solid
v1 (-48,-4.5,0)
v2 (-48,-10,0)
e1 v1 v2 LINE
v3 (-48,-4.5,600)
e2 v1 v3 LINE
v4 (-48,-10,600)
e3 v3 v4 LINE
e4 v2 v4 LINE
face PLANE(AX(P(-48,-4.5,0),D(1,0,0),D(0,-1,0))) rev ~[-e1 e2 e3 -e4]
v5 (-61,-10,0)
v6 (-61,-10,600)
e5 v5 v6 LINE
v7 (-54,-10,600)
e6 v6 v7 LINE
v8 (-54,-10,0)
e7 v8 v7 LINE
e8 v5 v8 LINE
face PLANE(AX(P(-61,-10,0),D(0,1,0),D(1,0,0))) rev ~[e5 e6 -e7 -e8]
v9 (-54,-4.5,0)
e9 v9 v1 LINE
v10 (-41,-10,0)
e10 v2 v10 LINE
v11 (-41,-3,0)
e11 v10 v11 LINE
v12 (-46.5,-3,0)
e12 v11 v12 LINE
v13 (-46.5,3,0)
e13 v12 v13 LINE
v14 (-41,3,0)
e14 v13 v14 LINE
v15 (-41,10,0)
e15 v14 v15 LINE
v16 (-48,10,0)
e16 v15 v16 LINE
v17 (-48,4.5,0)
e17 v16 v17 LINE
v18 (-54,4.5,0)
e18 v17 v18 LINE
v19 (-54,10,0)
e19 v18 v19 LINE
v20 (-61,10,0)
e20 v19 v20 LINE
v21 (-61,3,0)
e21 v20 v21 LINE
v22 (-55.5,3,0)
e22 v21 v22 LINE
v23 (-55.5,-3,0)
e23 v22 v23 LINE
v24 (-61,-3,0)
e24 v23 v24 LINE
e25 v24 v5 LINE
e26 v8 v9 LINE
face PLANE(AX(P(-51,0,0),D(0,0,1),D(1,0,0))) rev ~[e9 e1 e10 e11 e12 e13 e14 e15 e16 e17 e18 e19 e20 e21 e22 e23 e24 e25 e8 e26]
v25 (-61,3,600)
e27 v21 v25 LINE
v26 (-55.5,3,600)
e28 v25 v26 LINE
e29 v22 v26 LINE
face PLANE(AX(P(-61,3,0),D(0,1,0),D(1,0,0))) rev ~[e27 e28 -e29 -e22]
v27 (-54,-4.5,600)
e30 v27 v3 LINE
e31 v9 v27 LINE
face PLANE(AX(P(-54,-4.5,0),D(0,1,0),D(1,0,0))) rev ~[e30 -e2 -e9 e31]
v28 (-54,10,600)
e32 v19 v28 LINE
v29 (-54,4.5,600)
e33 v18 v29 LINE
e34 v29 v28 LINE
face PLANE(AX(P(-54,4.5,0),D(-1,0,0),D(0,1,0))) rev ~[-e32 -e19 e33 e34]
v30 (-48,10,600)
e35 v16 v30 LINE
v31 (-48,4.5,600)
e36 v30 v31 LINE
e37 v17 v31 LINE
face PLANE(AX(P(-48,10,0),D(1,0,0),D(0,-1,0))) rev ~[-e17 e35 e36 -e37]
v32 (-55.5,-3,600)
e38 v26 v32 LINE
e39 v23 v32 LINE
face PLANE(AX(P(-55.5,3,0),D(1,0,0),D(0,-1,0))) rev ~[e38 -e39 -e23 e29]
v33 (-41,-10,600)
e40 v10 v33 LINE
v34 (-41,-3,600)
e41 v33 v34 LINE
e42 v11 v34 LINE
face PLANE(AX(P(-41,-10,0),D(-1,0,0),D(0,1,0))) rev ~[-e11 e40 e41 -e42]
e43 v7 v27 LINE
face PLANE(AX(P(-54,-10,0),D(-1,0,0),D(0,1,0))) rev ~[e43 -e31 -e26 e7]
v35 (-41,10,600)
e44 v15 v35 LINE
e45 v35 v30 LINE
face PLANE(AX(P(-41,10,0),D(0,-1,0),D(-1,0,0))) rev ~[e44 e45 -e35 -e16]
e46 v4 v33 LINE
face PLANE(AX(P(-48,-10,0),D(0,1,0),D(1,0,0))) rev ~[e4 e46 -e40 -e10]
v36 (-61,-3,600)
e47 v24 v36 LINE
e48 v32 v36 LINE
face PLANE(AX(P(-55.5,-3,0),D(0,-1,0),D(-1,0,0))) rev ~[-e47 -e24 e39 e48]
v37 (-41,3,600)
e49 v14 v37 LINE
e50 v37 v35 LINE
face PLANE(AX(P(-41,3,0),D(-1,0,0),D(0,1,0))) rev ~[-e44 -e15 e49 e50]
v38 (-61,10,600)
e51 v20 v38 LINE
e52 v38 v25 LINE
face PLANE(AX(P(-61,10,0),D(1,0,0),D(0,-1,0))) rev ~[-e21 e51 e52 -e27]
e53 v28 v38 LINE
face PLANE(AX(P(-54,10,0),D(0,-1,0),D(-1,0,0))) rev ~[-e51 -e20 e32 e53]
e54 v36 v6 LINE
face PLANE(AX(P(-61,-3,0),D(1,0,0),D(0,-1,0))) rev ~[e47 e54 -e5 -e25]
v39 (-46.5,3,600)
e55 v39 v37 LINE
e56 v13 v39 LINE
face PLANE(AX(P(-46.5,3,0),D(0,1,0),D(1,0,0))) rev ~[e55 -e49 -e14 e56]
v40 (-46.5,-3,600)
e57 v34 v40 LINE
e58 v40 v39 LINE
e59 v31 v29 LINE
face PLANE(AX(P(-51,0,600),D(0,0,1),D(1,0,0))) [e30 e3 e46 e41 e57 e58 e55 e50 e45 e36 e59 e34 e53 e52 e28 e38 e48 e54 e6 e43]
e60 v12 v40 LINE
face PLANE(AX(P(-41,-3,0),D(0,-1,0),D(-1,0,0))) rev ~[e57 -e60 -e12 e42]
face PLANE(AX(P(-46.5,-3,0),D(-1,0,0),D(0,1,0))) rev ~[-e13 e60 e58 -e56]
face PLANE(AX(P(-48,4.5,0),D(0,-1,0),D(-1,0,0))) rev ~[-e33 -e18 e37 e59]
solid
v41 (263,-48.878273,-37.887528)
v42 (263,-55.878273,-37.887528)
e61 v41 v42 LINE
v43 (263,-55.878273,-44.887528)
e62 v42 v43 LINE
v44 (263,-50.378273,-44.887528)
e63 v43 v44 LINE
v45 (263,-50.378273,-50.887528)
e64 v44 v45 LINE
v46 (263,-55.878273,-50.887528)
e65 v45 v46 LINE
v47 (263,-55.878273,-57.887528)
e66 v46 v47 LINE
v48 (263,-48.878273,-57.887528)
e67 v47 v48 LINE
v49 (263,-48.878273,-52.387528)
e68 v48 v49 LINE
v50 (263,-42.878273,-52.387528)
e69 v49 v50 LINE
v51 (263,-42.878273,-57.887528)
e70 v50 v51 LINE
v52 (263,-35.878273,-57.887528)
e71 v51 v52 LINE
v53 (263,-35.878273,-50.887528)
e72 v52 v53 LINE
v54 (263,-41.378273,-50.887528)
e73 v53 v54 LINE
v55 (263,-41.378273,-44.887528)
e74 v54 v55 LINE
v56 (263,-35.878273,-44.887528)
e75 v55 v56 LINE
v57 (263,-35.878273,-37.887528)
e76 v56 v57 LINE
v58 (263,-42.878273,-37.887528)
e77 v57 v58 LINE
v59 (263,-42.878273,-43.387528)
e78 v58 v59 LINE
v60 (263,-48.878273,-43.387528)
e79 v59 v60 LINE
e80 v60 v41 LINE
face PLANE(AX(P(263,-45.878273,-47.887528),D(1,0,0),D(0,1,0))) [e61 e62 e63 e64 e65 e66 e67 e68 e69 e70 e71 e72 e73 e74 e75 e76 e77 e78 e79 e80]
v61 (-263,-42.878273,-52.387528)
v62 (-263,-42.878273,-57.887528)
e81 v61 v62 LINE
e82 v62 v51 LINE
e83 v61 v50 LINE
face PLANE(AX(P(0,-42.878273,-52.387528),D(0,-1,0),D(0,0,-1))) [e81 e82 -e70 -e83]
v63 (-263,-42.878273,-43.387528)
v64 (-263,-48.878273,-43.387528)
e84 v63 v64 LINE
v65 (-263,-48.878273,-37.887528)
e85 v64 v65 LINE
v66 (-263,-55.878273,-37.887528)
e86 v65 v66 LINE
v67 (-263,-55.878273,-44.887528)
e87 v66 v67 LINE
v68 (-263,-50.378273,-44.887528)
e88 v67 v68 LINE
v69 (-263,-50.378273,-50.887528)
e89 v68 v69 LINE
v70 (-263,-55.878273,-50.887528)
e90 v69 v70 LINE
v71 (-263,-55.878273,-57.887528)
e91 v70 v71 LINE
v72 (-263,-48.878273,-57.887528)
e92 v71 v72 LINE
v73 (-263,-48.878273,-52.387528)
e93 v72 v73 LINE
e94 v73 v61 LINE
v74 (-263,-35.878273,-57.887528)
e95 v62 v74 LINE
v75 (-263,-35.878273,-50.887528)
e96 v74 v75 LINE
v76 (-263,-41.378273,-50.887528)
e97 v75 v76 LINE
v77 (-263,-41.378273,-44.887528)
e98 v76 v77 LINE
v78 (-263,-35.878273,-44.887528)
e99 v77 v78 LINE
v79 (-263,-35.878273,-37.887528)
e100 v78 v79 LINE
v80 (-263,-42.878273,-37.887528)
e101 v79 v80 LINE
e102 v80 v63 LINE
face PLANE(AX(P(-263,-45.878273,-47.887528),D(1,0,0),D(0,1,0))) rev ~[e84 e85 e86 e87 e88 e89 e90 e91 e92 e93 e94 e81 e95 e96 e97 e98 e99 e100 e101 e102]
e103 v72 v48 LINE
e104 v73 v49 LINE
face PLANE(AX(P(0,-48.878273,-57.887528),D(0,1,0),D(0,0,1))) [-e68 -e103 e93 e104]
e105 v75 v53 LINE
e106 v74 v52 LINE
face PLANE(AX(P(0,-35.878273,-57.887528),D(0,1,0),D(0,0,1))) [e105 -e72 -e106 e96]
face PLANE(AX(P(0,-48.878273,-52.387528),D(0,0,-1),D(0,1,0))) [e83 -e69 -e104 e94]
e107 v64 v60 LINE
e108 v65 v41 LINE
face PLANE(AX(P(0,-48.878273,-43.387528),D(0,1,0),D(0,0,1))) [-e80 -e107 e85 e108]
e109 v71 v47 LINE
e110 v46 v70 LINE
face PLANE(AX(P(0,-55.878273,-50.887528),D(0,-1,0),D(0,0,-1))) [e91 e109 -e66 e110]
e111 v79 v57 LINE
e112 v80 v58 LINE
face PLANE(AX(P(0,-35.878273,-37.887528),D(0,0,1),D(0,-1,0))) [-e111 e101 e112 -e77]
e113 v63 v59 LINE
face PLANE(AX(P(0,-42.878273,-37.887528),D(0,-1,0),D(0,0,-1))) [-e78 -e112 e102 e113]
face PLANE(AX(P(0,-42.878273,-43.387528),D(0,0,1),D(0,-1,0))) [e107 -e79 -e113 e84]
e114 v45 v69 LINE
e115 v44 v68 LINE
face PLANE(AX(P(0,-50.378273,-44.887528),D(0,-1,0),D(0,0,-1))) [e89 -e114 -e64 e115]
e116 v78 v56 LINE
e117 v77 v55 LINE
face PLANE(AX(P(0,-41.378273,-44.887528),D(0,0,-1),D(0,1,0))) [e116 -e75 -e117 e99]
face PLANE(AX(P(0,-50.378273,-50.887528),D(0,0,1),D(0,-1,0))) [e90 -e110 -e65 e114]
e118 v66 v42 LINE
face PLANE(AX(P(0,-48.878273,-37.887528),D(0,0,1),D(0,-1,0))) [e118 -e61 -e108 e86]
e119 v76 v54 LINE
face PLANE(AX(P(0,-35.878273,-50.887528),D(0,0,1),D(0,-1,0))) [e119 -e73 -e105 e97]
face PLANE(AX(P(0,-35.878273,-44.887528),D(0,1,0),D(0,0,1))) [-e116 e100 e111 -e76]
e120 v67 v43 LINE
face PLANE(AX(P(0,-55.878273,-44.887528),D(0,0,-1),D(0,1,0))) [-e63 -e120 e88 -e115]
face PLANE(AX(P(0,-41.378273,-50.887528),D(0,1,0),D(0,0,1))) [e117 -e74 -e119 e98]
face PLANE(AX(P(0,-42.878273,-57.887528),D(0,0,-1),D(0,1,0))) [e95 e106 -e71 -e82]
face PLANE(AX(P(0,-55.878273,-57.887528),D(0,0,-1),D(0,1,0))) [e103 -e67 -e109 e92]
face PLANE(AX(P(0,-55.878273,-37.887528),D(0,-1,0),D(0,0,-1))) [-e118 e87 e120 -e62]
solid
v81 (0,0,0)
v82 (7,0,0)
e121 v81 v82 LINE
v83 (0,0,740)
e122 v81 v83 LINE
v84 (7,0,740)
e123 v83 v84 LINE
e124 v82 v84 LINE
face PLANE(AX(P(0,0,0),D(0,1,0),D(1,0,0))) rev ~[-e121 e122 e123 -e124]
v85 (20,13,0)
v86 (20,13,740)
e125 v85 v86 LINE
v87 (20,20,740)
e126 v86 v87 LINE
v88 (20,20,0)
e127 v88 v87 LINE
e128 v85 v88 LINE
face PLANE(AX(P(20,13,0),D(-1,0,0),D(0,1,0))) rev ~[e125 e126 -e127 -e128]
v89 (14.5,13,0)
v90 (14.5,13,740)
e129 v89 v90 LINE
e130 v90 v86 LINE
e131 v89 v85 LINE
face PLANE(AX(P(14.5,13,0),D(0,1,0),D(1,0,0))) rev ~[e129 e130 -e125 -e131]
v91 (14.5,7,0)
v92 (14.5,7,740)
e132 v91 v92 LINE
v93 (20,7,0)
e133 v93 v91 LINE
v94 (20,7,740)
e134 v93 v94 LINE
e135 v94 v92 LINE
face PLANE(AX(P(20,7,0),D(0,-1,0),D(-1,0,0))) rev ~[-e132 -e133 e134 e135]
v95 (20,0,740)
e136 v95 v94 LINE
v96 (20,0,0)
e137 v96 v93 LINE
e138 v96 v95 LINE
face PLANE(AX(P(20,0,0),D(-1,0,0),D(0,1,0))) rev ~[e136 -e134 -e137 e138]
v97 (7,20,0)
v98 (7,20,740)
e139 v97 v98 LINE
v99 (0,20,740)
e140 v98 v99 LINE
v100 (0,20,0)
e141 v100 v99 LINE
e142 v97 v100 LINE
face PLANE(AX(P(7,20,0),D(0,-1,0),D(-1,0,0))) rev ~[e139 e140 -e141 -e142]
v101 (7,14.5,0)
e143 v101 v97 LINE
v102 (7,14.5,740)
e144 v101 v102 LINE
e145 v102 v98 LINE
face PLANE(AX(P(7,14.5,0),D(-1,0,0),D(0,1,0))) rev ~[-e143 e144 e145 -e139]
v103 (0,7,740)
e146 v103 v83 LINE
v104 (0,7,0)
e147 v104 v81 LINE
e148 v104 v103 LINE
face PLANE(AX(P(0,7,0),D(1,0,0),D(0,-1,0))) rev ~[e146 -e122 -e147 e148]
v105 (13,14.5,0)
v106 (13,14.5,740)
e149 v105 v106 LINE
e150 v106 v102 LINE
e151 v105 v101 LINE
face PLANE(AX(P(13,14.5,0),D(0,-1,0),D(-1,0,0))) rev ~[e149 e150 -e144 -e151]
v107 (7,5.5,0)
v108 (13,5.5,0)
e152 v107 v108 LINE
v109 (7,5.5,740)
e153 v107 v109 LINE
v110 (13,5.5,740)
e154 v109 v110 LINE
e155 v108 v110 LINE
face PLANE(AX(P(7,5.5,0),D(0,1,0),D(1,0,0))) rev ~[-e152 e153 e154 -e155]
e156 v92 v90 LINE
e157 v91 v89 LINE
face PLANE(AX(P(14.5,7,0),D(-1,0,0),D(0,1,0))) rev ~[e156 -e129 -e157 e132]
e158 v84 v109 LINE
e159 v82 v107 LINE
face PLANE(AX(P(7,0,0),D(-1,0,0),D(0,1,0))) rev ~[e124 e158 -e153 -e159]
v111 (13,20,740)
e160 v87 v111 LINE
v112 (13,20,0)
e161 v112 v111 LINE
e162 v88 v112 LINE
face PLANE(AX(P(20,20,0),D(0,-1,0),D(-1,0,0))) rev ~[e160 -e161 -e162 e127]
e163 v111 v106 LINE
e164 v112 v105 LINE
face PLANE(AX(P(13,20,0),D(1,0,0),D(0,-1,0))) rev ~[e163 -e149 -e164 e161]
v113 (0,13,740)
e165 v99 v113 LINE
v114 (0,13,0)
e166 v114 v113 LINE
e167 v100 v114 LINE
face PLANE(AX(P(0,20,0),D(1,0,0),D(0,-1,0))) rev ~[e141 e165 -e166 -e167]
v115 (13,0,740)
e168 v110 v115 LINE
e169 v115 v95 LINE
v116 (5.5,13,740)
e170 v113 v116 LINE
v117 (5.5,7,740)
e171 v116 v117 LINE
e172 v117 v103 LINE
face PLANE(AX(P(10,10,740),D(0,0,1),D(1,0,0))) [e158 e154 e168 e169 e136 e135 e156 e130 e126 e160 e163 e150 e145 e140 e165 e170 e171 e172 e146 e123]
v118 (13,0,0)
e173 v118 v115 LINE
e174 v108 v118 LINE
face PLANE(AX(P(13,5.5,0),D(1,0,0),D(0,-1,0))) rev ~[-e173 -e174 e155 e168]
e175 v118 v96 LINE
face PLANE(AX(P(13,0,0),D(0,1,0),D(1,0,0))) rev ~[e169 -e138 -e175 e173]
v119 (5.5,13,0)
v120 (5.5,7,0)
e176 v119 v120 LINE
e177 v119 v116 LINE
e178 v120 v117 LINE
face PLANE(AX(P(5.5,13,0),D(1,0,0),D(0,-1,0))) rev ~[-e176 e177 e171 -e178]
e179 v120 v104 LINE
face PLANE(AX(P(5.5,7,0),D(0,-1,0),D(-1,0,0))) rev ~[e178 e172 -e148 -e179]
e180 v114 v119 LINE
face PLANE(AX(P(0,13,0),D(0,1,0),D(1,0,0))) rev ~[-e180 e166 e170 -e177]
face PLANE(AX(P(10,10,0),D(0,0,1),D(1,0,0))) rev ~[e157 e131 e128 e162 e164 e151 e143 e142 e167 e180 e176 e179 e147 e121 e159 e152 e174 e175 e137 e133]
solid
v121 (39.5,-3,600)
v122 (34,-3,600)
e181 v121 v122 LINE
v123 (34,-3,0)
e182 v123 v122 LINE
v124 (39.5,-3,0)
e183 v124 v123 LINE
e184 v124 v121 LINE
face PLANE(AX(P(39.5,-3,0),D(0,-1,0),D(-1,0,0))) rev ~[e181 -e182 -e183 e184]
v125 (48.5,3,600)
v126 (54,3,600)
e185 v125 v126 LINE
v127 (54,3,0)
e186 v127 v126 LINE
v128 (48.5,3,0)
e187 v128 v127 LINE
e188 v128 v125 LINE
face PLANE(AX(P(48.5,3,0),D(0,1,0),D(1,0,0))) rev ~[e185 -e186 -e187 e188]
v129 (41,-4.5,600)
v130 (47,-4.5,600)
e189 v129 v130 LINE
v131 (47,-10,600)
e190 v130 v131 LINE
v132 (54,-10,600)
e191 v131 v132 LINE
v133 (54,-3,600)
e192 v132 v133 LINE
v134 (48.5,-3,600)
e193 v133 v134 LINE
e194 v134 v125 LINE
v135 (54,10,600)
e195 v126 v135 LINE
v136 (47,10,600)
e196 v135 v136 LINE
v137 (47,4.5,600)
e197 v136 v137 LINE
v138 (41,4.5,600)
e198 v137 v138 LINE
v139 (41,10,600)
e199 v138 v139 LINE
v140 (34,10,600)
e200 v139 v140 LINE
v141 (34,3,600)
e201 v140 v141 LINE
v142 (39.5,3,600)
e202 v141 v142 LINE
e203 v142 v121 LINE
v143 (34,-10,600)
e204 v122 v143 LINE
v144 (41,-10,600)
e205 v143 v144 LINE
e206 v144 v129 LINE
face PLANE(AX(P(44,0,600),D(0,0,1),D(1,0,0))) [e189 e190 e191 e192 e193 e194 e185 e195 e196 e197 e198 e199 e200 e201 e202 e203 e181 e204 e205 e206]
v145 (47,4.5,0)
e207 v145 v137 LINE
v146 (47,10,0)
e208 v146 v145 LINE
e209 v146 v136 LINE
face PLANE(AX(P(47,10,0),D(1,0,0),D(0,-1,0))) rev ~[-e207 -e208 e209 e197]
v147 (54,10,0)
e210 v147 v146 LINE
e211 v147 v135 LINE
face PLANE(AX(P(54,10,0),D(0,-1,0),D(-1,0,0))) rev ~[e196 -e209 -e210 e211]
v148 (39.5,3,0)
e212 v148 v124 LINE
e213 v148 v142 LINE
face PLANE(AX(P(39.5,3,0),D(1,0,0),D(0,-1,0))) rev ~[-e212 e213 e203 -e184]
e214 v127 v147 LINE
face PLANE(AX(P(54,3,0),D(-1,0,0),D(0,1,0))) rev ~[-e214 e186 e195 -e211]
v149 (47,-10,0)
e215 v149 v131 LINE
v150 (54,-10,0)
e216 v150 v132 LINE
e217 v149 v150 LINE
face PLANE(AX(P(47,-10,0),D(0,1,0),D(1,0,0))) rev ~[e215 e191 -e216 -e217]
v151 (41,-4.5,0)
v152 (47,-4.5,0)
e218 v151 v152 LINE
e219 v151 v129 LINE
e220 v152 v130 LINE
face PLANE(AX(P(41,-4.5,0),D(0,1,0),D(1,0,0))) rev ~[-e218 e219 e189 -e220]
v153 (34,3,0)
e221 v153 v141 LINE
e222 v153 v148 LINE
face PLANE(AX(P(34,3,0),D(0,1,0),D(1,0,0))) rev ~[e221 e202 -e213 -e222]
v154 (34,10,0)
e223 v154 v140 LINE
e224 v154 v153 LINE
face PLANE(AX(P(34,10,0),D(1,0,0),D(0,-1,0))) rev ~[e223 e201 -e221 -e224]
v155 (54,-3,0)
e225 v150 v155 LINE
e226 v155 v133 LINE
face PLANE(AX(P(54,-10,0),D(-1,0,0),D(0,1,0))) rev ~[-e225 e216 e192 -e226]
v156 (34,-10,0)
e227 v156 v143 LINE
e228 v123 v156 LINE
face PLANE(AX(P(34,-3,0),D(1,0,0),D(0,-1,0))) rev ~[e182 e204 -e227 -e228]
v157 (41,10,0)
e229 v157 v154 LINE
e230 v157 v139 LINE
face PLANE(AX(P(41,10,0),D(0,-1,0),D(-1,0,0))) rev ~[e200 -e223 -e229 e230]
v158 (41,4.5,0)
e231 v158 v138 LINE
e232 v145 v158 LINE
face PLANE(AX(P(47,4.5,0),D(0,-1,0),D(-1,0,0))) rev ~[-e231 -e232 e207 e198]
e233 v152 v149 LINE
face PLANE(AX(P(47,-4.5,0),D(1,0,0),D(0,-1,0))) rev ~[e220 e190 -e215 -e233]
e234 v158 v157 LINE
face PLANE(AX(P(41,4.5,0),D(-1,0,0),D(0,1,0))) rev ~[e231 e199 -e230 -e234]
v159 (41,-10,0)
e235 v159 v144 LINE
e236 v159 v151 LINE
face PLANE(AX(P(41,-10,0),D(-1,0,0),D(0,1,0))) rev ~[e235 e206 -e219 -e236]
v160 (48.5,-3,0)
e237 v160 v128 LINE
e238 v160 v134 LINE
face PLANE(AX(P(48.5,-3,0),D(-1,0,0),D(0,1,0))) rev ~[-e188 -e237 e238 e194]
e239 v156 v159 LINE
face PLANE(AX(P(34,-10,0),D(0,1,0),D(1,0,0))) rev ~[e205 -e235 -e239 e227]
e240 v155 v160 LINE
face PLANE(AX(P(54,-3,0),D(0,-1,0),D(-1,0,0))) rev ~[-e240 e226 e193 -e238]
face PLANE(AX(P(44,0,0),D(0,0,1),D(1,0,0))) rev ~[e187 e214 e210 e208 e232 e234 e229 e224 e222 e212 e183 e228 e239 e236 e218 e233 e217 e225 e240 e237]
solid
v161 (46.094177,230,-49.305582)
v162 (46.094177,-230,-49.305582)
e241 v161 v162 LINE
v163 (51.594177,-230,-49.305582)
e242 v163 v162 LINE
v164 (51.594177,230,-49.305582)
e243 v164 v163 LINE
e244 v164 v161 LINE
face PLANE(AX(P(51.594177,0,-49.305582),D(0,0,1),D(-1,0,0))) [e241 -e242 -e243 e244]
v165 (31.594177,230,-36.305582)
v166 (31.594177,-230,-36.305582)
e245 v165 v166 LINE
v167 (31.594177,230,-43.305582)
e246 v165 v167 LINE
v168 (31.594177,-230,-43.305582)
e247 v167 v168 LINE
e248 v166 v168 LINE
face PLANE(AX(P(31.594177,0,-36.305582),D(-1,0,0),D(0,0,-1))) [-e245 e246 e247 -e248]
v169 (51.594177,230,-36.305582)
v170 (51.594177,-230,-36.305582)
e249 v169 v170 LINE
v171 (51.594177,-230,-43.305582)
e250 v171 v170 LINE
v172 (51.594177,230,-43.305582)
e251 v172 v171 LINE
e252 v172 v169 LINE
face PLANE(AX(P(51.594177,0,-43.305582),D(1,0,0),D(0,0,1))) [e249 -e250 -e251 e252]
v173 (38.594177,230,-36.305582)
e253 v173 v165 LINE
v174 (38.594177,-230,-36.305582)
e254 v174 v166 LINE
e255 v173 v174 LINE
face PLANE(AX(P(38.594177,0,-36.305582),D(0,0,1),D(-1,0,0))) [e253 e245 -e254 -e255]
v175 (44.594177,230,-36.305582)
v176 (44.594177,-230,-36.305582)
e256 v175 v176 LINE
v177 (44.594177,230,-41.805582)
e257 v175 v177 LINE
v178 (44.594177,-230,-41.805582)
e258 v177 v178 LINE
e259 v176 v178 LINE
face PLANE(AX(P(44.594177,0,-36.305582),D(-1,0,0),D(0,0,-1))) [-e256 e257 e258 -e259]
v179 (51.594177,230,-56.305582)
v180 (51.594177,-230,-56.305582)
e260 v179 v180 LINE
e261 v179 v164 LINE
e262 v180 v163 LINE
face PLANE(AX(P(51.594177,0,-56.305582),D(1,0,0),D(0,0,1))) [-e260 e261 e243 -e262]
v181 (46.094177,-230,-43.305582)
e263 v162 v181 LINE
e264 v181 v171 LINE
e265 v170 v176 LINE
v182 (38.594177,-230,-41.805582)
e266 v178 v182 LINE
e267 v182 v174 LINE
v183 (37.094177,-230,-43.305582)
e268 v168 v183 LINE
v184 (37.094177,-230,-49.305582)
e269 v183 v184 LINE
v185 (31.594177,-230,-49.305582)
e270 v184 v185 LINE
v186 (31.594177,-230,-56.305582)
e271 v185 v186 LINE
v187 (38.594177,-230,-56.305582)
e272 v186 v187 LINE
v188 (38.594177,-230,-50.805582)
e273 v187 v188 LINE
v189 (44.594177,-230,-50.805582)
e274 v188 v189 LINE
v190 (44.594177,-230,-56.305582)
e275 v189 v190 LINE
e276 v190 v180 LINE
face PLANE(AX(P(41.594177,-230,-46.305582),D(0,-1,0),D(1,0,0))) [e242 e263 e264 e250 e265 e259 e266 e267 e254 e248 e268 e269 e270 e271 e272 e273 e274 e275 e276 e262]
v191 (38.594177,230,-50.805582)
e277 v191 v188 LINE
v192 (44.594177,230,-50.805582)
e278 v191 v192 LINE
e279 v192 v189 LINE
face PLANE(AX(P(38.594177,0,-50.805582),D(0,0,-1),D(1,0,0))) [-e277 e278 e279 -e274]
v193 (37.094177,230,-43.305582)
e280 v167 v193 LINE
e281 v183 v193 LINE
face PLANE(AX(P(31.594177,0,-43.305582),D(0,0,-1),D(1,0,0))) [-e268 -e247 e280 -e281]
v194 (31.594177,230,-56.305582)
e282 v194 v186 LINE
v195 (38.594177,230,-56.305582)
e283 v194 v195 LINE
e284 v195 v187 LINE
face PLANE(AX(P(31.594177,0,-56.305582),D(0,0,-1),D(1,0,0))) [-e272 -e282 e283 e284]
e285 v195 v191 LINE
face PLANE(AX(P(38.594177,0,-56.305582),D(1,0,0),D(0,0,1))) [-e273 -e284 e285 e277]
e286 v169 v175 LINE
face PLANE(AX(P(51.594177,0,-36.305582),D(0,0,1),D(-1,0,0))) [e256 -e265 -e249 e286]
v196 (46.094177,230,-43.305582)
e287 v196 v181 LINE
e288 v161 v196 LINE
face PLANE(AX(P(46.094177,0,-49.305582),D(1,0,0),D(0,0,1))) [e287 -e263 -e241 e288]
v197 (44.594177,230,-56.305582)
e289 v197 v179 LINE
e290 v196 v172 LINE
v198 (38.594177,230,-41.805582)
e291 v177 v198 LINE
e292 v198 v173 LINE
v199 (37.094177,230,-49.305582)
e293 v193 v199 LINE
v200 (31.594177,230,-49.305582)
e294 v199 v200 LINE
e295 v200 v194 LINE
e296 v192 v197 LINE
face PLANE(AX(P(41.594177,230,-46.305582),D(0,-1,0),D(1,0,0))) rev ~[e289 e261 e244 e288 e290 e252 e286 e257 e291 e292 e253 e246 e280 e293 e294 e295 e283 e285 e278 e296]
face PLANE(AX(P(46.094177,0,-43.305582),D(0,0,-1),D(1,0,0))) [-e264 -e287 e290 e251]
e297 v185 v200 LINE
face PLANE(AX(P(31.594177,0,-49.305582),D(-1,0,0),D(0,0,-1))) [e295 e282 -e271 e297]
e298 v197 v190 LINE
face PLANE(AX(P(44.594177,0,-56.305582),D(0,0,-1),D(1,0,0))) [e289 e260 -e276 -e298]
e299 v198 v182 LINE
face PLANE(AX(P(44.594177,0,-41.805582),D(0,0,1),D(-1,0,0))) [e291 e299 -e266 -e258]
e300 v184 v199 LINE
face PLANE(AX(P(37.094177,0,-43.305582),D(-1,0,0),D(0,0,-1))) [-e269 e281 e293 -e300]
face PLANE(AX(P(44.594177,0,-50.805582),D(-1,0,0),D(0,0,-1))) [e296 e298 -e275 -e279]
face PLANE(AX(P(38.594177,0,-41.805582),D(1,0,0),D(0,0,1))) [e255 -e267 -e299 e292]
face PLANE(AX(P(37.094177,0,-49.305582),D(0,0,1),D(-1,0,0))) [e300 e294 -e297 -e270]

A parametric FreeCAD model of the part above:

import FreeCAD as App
import Part
import Sketcher

doc = App.newDocument("Part")
params = doc.addObject("Spreadsheet::Sheet", "Params")
for row, (alias, value) in enumerate([
    ("sketch1_width", "7 mm"),
    ("sketch1_width2", "6 mm"),
    ("sketch1_width3", "5.5 mm"),
    ("pad1_length", "740 mm"),
    ("sketch2_width", "7 mm"),
    ("sketch2_width2", "6 mm"),
    ("sketch2_width3", "5.5 mm"),
    ("pad2_length", "600 mm"),
    ("sketch3_width", "7 mm"),
    ("sketch3_width2", "6 mm"),
    ("sketch3_width3", "5.5 mm"),
    ("pad3_length", "600 mm"),
    ("sketch4_width", "7 mm"),
    ("sketch4_width2", "6 mm"),
    ("sketch4_width3", "5.5 mm"),
    ("pad4_length", "526 mm"),
    ("sketch5_width", "7 mm"),
    ("sketch5_width2", "6 mm"),
    ("sketch5_width3", "5.5 mm"),
    ("pad5_length", "460 mm"),
], start=1):
    params.set(f"A{row}", alias)
    params.set(f"B{row}", "=" + value)
    params.setAlias(f"B{row}", alias)

body = doc.addObject("PartDesign::Body", "Body")

# Sketch on XY plane
sketch1 = body.newObject("Sketcher::SketchObject", "Sketch")
sketch1.AttachmentSupport = (doc.getObject("XY_Plane"), [""])
sketch1.MapMode = "FlatFace"
sketch1.addGeometry([
    Part.LineSegment(App.Vector(0, 7, 0), App.Vector(0, 0, 0)),  # 0
    Part.LineSegment(App.Vector(0, 0, 0), App.Vector(7, 0, 0)),  # 1
    Part.LineSegment(App.Vector(7, 0, 0), App.Vector(7, 6, 0)),  # 2
    Part.LineSegment(App.Vector(7, 6, 0), App.Vector(13, 6, 0)),  # 3
    Part.LineSegment(App.Vector(13, 6, 0), App.Vector(13, 0, 0)),  # 4
    Part.LineSegment(App.Vector(13, 0, 0), App.Vector(20, 0, 0)),  # 5
    Part.LineSegment(App.Vector(20, 0, 0), App.Vector(20, 7, 0)),  # 6
    Part.LineSegment(App.Vector(20, 7, 0), App.Vector(14, 7, 0)),  # 7
    Part.LineSegment(App.Vector(14, 7, 0), App.Vector(14, 13, 0)),  # 8
    Part.LineSegment(App.Vector(14, 13, 0), App.Vector(20, 13, 0)),  # 9
    Part.LineSegment(App.Vector(20, 13, 0), App.Vector(20, 20, 0)),  # 10
    Part.LineSegment(App.Vector(20, 20, 0), App.Vector(13, 20, 0)),  # 11
    Part.LineSegment(App.Vector(13, 20, 0), App.Vector(13, 14, 0)),  # 12
    Part.LineSegment(App.Vector(13, 14, 0), App.Vector(7, 14, 0)),  # 13
    Part.LineSegment(App.Vector(7, 14, 0), App.Vector(7, 20, 0)),  # 14
    Part.LineSegment(App.Vector(7, 20, 0), App.Vector(0, 20, 0)),  # 15
    Part.LineSegment(App.Vector(0, 20, 0), App.Vector(0, 13, 0)),  # 16
    Part.LineSegment(App.Vector(0, 13, 0), App.Vector(6, 13, 0)),  # 17
    Part.LineSegment(App.Vector(6, 13, 0), App.Vector(6, 7, 0)),  # 18
    Part.LineSegment(App.Vector(6, 7, 0), App.Vector(0, 7, 0)),  # 19
], False)
sketch1.addConstraint([
    Sketcher.Constraint("Coincident", 0, 2, 1, 1),
    Sketcher.Constraint("Coincident", 1, 2, 2, 1),
    Sketcher.Constraint("Coincident", 2, 2, 3, 1),
    Sketcher.Constraint("Coincident", 3, 2, 4, 1),
    Sketcher.Constraint("Coincident", 4, 2, 5, 1),
    Sketcher.Constraint("Coincident", 5, 2, 6, 1),
    Sketcher.Constraint("Coincident", 6, 2, 7, 1),
    Sketcher.Constraint("Coincident", 7, 2, 8, 1),
    Sketcher.Constraint("Coincident", 8, 2, 9, 1),
    Sketcher.Constraint("Coincident", 9, 2, 10, 1),
    Sketcher.Constraint("Coincident", 10, 2, 11, 1),
    Sketcher.Constraint("Coincident", 11, 2, 12, 1),
    Sketcher.Constraint("Coincident", 12, 2, 13, 1),
    Sketcher.Constraint("Coincident", 13, 2, 14, 1),
    Sketcher.Constraint("Coincident", 14, 2, 15, 1),
    Sketcher.Constraint("Coincident", 15, 2, 16, 1),
    Sketcher.Constraint("Coincident", 16, 2, 17, 1),
    Sketcher.Constraint("Coincident", 17, 2, 18, 1),
    Sketcher.Constraint("Coincident", 18, 2, 19, 1),
    Sketcher.Constraint("Coincident", 19, 2, 0, 1),
    Sketcher.Constraint("Vertical", 0),
    Sketcher.Constraint("Horizontal", 1),
    Sketcher.Constraint("Vertical", 2),
    Sketcher.Constraint("Horizontal", 3),
    Sketcher.Constraint("Vertical", 4),
    Sketcher.Constraint("Horizontal", 5),
    Sketcher.Constraint("Vertical", 6),
    Sketcher.Constraint("Horizontal", 7),
    Sketcher.Constraint("Vertical", 8),
    Sketcher.Constraint("Horizontal", 9),
    Sketcher.Constraint("Vertical", 10),
    Sketcher.Constraint("Horizontal", 11),
    Sketcher.Constraint("Vertical", 12),
    Sketcher.Constraint("Horizontal", 13),
    Sketcher.Constraint("Vertical", 14),
    Sketcher.Constraint("Horizontal", 15),
    Sketcher.Constraint("Vertical", 16),
    Sketcher.Constraint("Horizontal", 17),
    Sketcher.Constraint("Vertical", 18),
    Sketcher.Constraint("Horizontal", 19),
    Sketcher.Constraint("Coincident", 0, 2, -1, 1),
    Sketcher.Constraint("PointOnObject", 4, 2, -1),
    Sketcher.Constraint("PointOnObject", 15, 2, -2),
    Sketcher.Constraint("Horizontal", 11, 2, 14, 2),
    Sketcher.Constraint("Horizontal", 9, 2, 16, 2),
    Sketcher.Constraint("Horizontal", 7, 2, 18, 2),
    Sketcher.Constraint("Vertical", 6, 2, 9, 2),
    Sketcher.Constraint("Vertical", 4, 2, 11, 2),
    Sketcher.Constraint("Vertical", 2, 2, 13, 2),
    Sketcher.Constraint("Equal", 1, 5),
    Sketcher.Constraint("Equal", 9, 17),
    Sketcher.Constraint("Equal", 15, 0),
    Sketcher.Constraint("Equal", 19, 2),
    Sketcher.Constraint("Equal", 13, 8),
    Sketcher.Constraint("Equal", 6, 10),
    Sketcher.Constraint("Equal", 4, 12),
    Sketcher.Constraint("DistanceX", 1, 1, 1, 2, 7.0),
    Sketcher.Constraint("DistanceX", 3, 1, 3, 2, 6.0),
    Sketcher.Constraint("DistanceX", 7, 2, 7, 1, 5.5),
])
sketch1.setExpression("Constraints[56]", "Params.sketch1_width")
sketch1.setExpression("Constraints[57]", "Params.sketch1_width2")
sketch1.setExpression("Constraints[58]", "Params.sketch1_width3")
pad1 = body.newObject("PartDesign::Pad", "Pad")
pad1.Profile = sketch1
pad1.setExpression("Length", "Params.pad1_length")
body2 = doc.addObject("PartDesign::Body", "Body001")

# Sketch on XY plane
sketch2 = body2.newObject("Sketcher::SketchObject", "Sketch001")
sketch2.AttachmentSupport = (doc.getObject("XY_Plane001"), [""])
sketch2.MapMode = "FlatFace"
sketch2.addGeometry([
    Part.LineSegment(App.Vector(-61, -3, 0), App.Vector(-61, -10, 0)),  # 0
    Part.LineSegment(App.Vector(-61, -10, 0), App.Vector(-54, -10, 0)),  # 1
    Part.LineSegment(App.Vector(-54, -10, 0), App.Vector(-54, -4, 0)),  # 2
    Part.LineSegment(App.Vector(-54, -4, 0), App.Vector(-48, -4, 0)),  # 3
    Part.LineSegment(App.Vector(-48, -4, 0), App.Vector(-48, -10, 0)),  # 4
    Part.LineSegment(App.Vector(-48, -10, 0), App.Vector(-41, -10, 0)),  # 5
    Part.LineSegment(App.Vector(-41, -10, 0), App.Vector(-41, -3, 0)),  # 6
    Part.LineSegment(App.Vector(-41, -3, 0), App.Vector(-46, -3, 0)),  # 7
    Part.LineSegment(App.Vector(-46, -3, 0), App.Vector(-46, 3, 0)),  # 8
    Part.LineSegment(App.Vector(-46, 3, 0), App.Vector(-41, 3, 0)),  # 9
    Part.LineSegment(App.Vector(-41, 3, 0), App.Vector(-41, 10, 0)),  # 10
    Part.LineSegment(App.Vector(-41, 10, 0), App.Vector(-48, 10, 0)),  # 11
    Part.LineSegment(App.Vector(-48, 10, 0), App.Vector(-48, 4, 0)),  # 12
    Part.LineSegment(App.Vector(-48, 4, 0), App.Vector(-54, 4, 0)),  # 13
    Part.LineSegment(App.Vector(-54, 4, 0), App.Vector(-54, 10, 0)),  # 14
    Part.LineSegment(App.Vector(-54, 10, 0), App.Vector(-61, 10, 0)),  # 15
    Part.LineSegment(App.Vector(-61, 10, 0), App.Vector(-61, 3, 0)),  # 16
    Part.LineSegment(App.Vector(-61, 3, 0), App.Vector(-56, 3, 0)),  # 17
    Part.LineSegment(App.Vector(-56, 3, 0), App.Vector(-56, -3, 0)),  # 18
    Part.LineSegment(App.Vector(-56, -3, 0), App.Vector(-61, -3, 0)),  # 19
], False)
sketch2.addConstraint([
    Sketcher.Constraint("Coincident", 0, 2, 1, 1),
    Sketcher.Constraint("Coincident", 1, 2, 2, 1),
    Sketcher.Constraint("Coincident", 2, 2, 3, 1),
    Sketcher.Constraint("Coincident", 3, 2, 4, 1),
    Sketcher.Constraint("Coincident", 4, 2, 5, 1),
    Sketcher.Constraint("Coincident", 5, 2, 6, 1),
    Sketcher.Constraint("Coincident", 6, 2, 7, 1),
    Sketcher.Constraint("Coincident", 7, 2, 8, 1),
    Sketcher.Constraint("Coincident", 8, 2, 9, 1),
    Sketcher.Constraint("Coincident", 9, 2, 10, 1),
    Sketcher.Constraint("Coincident", 10, 2, 11, 1),
    Sketcher.Constraint("Coincident", 11, 2, 12, 1),
    Sketcher.Constraint("Coincident", 12, 2, 13, 1),
    Sketcher.Constraint("Coincident", 13, 2, 14, 1),
    Sketcher.Constraint("Coincident", 14, 2, 15, 1),
    Sketcher.Constraint("Coincident", 15, 2, 16, 1),
    Sketcher.Constraint("Coincident", 16, 2, 17, 1),
    Sketcher.Constraint("Coincident", 17, 2, 18, 1),
    Sketcher.Constraint("Coincident", 18, 2, 19, 1),
    Sketcher.Constraint("Coincident", 19, 2, 0, 1),
    Sketcher.Constraint("Vertical", 0),
    Sketcher.Constraint("Horizontal", 1),
    Sketcher.Constraint("Vertical", 2),
    Sketcher.Constraint("Horizontal", 3),
    Sketcher.Constraint("Vertical", 4),
    Sketcher.Constraint("Horizontal", 5),
    Sketcher.Constraint("Vertical", 6),
    Sketcher.Constraint("Horizontal", 7),
    Sketcher.Constraint("Vertical", 8),
    Sketcher.Constraint("Horizontal", 9),
    Sketcher.Constraint("Vertical", 10),
    Sketcher.Constraint("Horizontal", 11),
    Sketcher.Constraint("Vertical", 12),
    Sketcher.Constraint("Horizontal", 13),
    Sketcher.Constraint("Vertical", 14),
    Sketcher.Constraint("Horizontal", 15),
    Sketcher.Constraint("Vertical", 16),
    Sketcher.Constraint("Horizontal", 17),
    Sketcher.Constraint("Vertical", 18),
    Sketcher.Constraint("Horizontal", 19),
    Sketcher.Constraint("Symmetric", 6, 2, 9, 2, -1),
    Sketcher.Constraint("Symmetric", 4, 2, 11, 2, -1),
    Sketcher.Constraint("Symmetric", 2, 2, 13, 2, -1),
    Sketcher.Constraint("Symmetric", 0, 2, 15, 2, -1),
    Sketcher.Constraint("Horizontal", 1, 2, 4, 2),
    Sketcher.Constraint("Horizontal", 9, 2, 16, 2),
    Sketcher.Constraint("Horizontal", 7, 2, 18, 2),
    Sketcher.Constraint("Equal", 1, 5),
    Sketcher.Constraint("Equal", 9, 17),
    Sketcher.Constraint("Equal", 15, 0),
    Sketcher.Constraint("Equal", 19, 2),
    Sketcher.Constraint("Equal", 13, 8),
    Sketcher.Constraint("DistanceX", 1, 1, 1, 2, 7.0),
    Sketcher.Constraint("DistanceX", 3, 1, 3, 2, 6.0),
    Sketcher.Constraint("DistanceX", 7, 2, 7, 1, 5.5),
    Sketcher.Constraint("DistanceX", 0, 2, -1, 1, 61.0),
])
sketch2.setExpression("Constraints[52]", "Params.sketch2_width")
sketch2.setExpression("Constraints[53]", "Params.sketch2_width2")
sketch2.setExpression("Constraints[54]", "Params.sketch2_width3")
pad2 = body2.newObject("PartDesign::Pad", "Pad001")
pad2.Profile = sketch2
pad2.setExpression("Length", "Params.pad2_length")
body3 = doc.addObject("PartDesign::Body", "Body002")

# Sketch on XY plane
sketch3 = body3.newObject("Sketcher::SketchObject", "Sketch002")
sketch3.AttachmentSupport = (doc.getObject("XY_Plane002"), [""])
sketch3.MapMode = "FlatFace"
sketch3.addGeometry([
    Part.LineSegment(App.Vector(34, -3, 0), App.Vector(34, -10, 0)),  # 0
    Part.LineSegment(App.Vector(34, -10, 0), App.Vector(41, -10, 0)),  # 1
    Part.LineSegment(App.Vector(41, -10, 0), App.Vector(41, -4, 0)),  # 2
    Part.LineSegment(App.Vector(41, -4, 0), App.Vector(47, -4, 0)),  # 3
    Part.LineSegment(App.Vector(47, -4, 0), App.Vector(47, -10, 0)),  # 4
    Part.LineSegment(App.Vector(47, -10, 0), App.Vector(54, -10, 0)),  # 5
    Part.LineSegment(App.Vector(54, -10, 0), App.Vector(54, -3, 0)),  # 6
    Part.LineSegment(App.Vector(54, -3, 0), App.Vector(48, -3, 0)),  # 7
    Part.LineSegment(App.Vector(48, -3, 0), App.Vector(48, 3, 0)),  # 8
    Part.LineSegment(App.Vector(48, 3, 0), App.Vector(54, 3, 0)),  # 9
    Part.LineSegment(App.Vector(54, 3, 0), App.Vector(54, 10, 0)),  # 10
    Part.LineSegment(App.Vector(54, 10, 0), App.Vector(47, 10, 0)),  # 11
    Part.LineSegment(App.Vector(47, 10, 0), App.Vector(47, 4, 0)),  # 12
    Part.LineSegment(App.Vector(47, 4, 0), App.Vector(41, 4, 0)),  # 13
    Part.LineSegment(App.Vector(41, 4, 0), App.Vector(41, 10, 0)),  # 14
    Part.LineSegment(App.Vector(41, 10, 0), App.Vector(34, 10, 0)),  # 15
    Part.LineSegment(App.Vector(34, 10, 0), App.Vector(34, 3, 0)),  # 16
    Part.LineSegment(App.Vector(34, 3, 0), App.Vector(40, 3, 0)),  # 17
    Part.LineSegment(App.Vector(40, 3, 0), App.Vector(40, -3, 0)),  # 18
    Part.LineSegment(App.Vector(40, -3, 0), App.Vector(34, -3, 0)),  # 19
], False)
sketch3.addConstraint([
    Sketcher.Constraint("Coincident", 0, 2, 1, 1),
    Sketcher.Constraint("Coincident", 1, 2, 2, 1),
    Sketcher.Constraint("Coincident", 2, 2, 3, 1),
    Sketcher.Constraint("Coincident", 3, 2, 4, 1),
    Sketcher.Constraint("Coincident", 4, 2, 5, 1),
    Sketcher.Constraint("Coincident", 5, 2, 6, 1),
    Sketcher.Constraint("Coincident", 6, 2, 7, 1),
    Sketcher.Constraint("Coincident", 7, 2, 8, 1),
    Sketcher.Constraint("Coincident", 8, 2, 9, 1),
    Sketcher.Constraint("Coincident", 9, 2, 10, 1),
    Sketcher.Constraint("Coincident", 10, 2, 11, 1),
    Sketcher.Constraint("Coincident", 11, 2, 12, 1),
    Sketcher.Constraint("Coincident", 12, 2, 13, 1),
    Sketcher.Constraint("Coincident", 13, 2, 14, 1),
    Sketcher.Constraint("Coincident", 14, 2, 15, 1),
    Sketcher.Constraint("Coincident", 15, 2, 16, 1),
    Sketcher.Constraint("Coincident", 16, 2, 17, 1),
    Sketcher.Constraint("Coincident", 17, 2, 18, 1),
    Sketcher.Constraint("Coincident", 18, 2, 19, 1),
    Sketcher.Constraint("Coincident", 19, 2, 0, 1),
    Sketcher.Constraint("Vertical", 0),
    Sketcher.Constraint("Horizontal", 1),
    Sketcher.Constraint("Vertical", 2),
    Sketcher.Constraint("Horizontal", 3),
    Sketcher.Constraint("Vertical", 4),
    Sketcher.Constraint("Horizontal", 5),
    Sketcher.Constraint("Vertical", 6),
    Sketcher.Constraint("Horizontal", 7),
    Sketcher.Constraint("Vertical", 8),
    Sketcher.Constraint("Horizontal", 9),
    Sketcher.Constraint("Vertical", 10),
    Sketcher.Constraint("Horizontal", 11),
    Sketcher.Constraint("Vertical", 12),
    Sketcher.Constraint("Horizontal", 13),
    Sketcher.Constraint("Vertical", 14),
    Sketcher.Constraint("Horizontal", 15),
    Sketcher.Constraint("Vertical", 16),
    Sketcher.Constraint("Horizontal", 17),
    Sketcher.Constraint("Vertical", 18),
    Sketcher.Constraint("Horizontal", 19),
    Sketcher.Constraint("Symmetric", 6, 2, 9, 2, -1),
    Sketcher.Constraint("Symmetric", 4, 2, 11, 2, -1),
    Sketcher.Constraint("Symmetric", 2, 2, 13, 2, -1),
    Sketcher.Constraint("Symmetric", 0, 2, 15, 2, -1),
    Sketcher.Constraint("Horizontal", 1, 2, 4, 2),
    Sketcher.Constraint("Horizontal", 9, 2, 16, 2),
    Sketcher.Constraint("Horizontal", 7, 2, 18, 2),
    Sketcher.Constraint("Equal", 1, 5),
    Sketcher.Constraint("Equal", 9, 17),
    Sketcher.Constraint("Equal", 15, 0),
    Sketcher.Constraint("Equal", 19, 2),
    Sketcher.Constraint("Equal", 13, 8),
    Sketcher.Constraint("DistanceX", 1, 1, 1, 2, 7.0),
    Sketcher.Constraint("DistanceX", 3, 1, 3, 2, 6.0),
    Sketcher.Constraint("DistanceX", 7, 2, 7, 1, 5.5),
    Sketcher.Constraint("DistanceX", -1, 1, 0, 2, 34.0),
])
sketch3.setExpression("Constraints[52]", "Params.sketch3_width")
sketch3.setExpression("Constraints[53]", "Params.sketch3_width2")
sketch3.setExpression("Constraints[54]", "Params.sketch3_width3")
pad3 = body3.newObject("PartDesign::Pad", "Pad002")
pad3.Profile = sketch3
pad3.setExpression("Length", "Params.pad3_length")
body4 = doc.addObject("PartDesign::Body", "Body003")

# Sketch on YZ plane
sketch4 = body4.newObject("Sketcher::SketchObject", "Sketch003")
sketch4.AttachmentSupport = (doc.getObject("YZ_Plane003"), [""])
sketch4.MapMode = "FlatFace"
sketch4.addGeometry([
    Part.LineSegment(App.Vector(-56, -51, 0), App.Vector(-56, -58, 0)),  # 0
    Part.LineSegment(App.Vector(-56, -58, 0), App.Vector(-49, -58, 0)),  # 1
    Part.LineSegment(App.Vector(-49, -58, 0), App.Vector(-49, -52, 0)),  # 2
    Part.LineSegment(App.Vector(-49, -52, 0), App.Vector(-43, -52, 0)),  # 3
    Part.LineSegment(App.Vector(-43, -52, 0), App.Vector(-43, -58, 0)),  # 4
    Part.LineSegment(App.Vector(-43, -58, 0), App.Vector(-36, -58, 0)),  # 5
    Part.LineSegment(App.Vector(-36, -58, 0), App.Vector(-36, -51, 0)),  # 6
    Part.LineSegment(App.Vector(-36, -51, 0), App.Vector(-41, -51, 0)),  # 7
    Part.LineSegment(App.Vector(-41, -51, 0), App.Vector(-41, -45, 0)),  # 8
    Part.LineSegment(App.Vector(-41, -45, 0), App.Vector(-36, -45, 0)),  # 9
    Part.LineSegment(App.Vector(-36, -45, 0), App.Vector(-36, -38, 0)),  # 10
    Part.LineSegment(App.Vector(-36, -38, 0), App.Vector(-43, -38, 0)),  # 11
    Part.LineSegment(App.Vector(-43, -38, 0), App.Vector(-43, -43, 0)),  # 12
    Part.LineSegment(App.Vector(-43, -43, 0), App.Vector(-49, -43, 0)),  # 13
    Part.LineSegment(App.Vector(-49, -43, 0), App.Vector(-49, -38, 0)),  # 14
    Part.LineSegment(App.Vector(-49, -38, 0), App.Vector(-56, -38, 0)),  # 15
    Part.LineSegment(App.Vector(-56, -38, 0), App.Vector(-56, -45, 0)),  # 16
    Part.LineSegment(App.Vector(-56, -45, 0), App.Vector(-50, -45, 0)),  # 17
    Part.LineSegment(App.Vector(-50, -45, 0), App.Vector(-50, -51, 0)),  # 18
    Part.LineSegment(App.Vector(-50, -51, 0), App.Vector(-56, -51, 0)),  # 19
], False)
sketch4.addConstraint([
    Sketcher.Constraint("Coincident", 0, 2, 1, 1),
    Sketcher.Constraint("Coincident", 1, 2, 2, 1),
    Sketcher.Constraint("Coincident", 2, 2, 3, 1),
    Sketcher.Constraint("Coincident", 3, 2, 4, 1),
    Sketcher.Constraint("Coincident", 4, 2, 5, 1),
    Sketcher.Constraint("Coincident", 5, 2, 6, 1),
    Sketcher.Constraint("Coincident", 6, 2, 7, 1),
    Sketcher.Constraint("Coincident", 7, 2, 8, 1),
    Sketcher.Constraint("Coincident", 8, 2, 9, 1),
    Sketcher.Constraint("Coincident", 9, 2, 10, 1),
    Sketcher.Constraint("Coincident", 10, 2, 11, 1),
    Sketcher.Constraint("Coincident", 11, 2, 12, 1),
    Sketcher.Constraint("Coincident", 12, 2, 13, 1),
    Sketcher.Constraint("Coincident", 13, 2, 14, 1),
    Sketcher.Constraint("Coincident", 14, 2, 15, 1),
    Sketcher.Constraint("Coincident", 15, 2, 16, 1),
    Sketcher.Constraint("Coincident", 16, 2, 17, 1),
    Sketcher.Constraint("Coincident", 17, 2, 18, 1),
    Sketcher.Constraint("Coincident", 18, 2, 19, 1),
    Sketcher.Constraint("Coincident", 19, 2, 0, 1),
    Sketcher.Constraint("Vertical", 0),
    Sketcher.Constraint("Horizontal", 1),
    Sketcher.Constraint("Vertical", 2),
    Sketcher.Constraint("Horizontal", 3),
    Sketcher.Constraint("Vertical", 4),
    Sketcher.Constraint("Horizontal", 5),
    Sketcher.Constraint("Vertical", 6),
    Sketcher.Constraint("Horizontal", 7),
    Sketcher.Constraint("Vertical", 8),
    Sketcher.Constraint("Horizontal", 9),
    Sketcher.Constraint("Vertical", 10),
    Sketcher.Constraint("Horizontal", 11),
    Sketcher.Constraint("Vertical", 12),
    Sketcher.Constraint("Horizontal", 13),
    Sketcher.Constraint("Vertical", 14),
    Sketcher.Constraint("Horizontal", 15),
    Sketcher.Constraint("Vertical", 16),
    Sketcher.Constraint("Horizontal", 17),
    Sketcher.Constraint("Vertical", 18),
    Sketcher.Constraint("Horizontal", 19),
    Sketcher.Constraint("Horizontal", 1, 2, 4, 2),
    Sketcher.Constraint("Horizontal", 11, 2, 14, 2),
    Sketcher.Constraint("Horizontal", 9, 2, 16, 2),
    Sketcher.Constraint("Horizontal", 7, 2, 18, 2),
    Sketcher.Constraint("Vertical", 6, 2, 9, 2),
    Sketcher.Constraint("Vertical", 4, 2, 11, 2),
    Sketcher.Constraint("Vertical", 2, 2, 13, 2),
    Sketcher.Constraint("Vertical", 0, 2, 15, 2),
    Sketcher.Constraint("Equal", 1, 5),
    Sketcher.Constraint("Equal", 9, 17),
    Sketcher.Constraint("Equal", 15, 0),
    Sketcher.Constraint("Equal", 19, 2),
    Sketcher.Constraint("Equal", 13, 8),
    Sketcher.Constraint("Equal", 6, 10),
    Sketcher.Constraint("Equal", 4, 12),
    Sketcher.Constraint("DistanceX", 1, 1, 1, 2, 7.0),
    Sketcher.Constraint("DistanceX", 3, 1, 3, 2, 6.0),
    Sketcher.Constraint("DistanceX", 7, 2, 7, 1, 5.5),
    Sketcher.Constraint("DistanceY", 0, 2, -1, 1, 57.887528),
    Sketcher.Constraint("DistanceX", 0, 2, -1, 1, 55.878273),
])
sketch4.setExpression("Constraints[55]", "Params.sketch4_width")
sketch4.setExpression("Constraints[56]", "Params.sketch4_width2")
sketch4.setExpression("Constraints[57]", "Params.sketch4_width3")
pad4 = body4.newObject("PartDesign::Pad", "Pad003")
pad4.Profile = sketch4
pad4.setExpression("Length", "Params.pad4_length")
pad4.Midplane = True
body5 = doc.addObject("PartDesign::Body", "Body004")

# Sketch on XZ plane
sketch5 = body5.newObject("Sketcher::SketchObject", "Sketch004")
sketch5.AttachmentSupport = (doc.getObject("XZ_Plane004"), [""])
sketch5.MapMode = "FlatFace"
sketch5.addGeometry([
    Part.LineSegment(App.Vector(32, -49, 0), App.Vector(32, -56, 0)),  # 0
    Part.LineSegment(App.Vector(32, -56, 0), App.Vector(39, -56, 0)),  # 1
    Part.LineSegment(App.Vector(39, -56, 0), App.Vector(39, -51, 0)),  # 2
    Part.LineSegment(App.Vector(39, -51, 0), App.Vector(45, -51, 0)),  # 3
    Part.LineSegment(App.Vector(45, -51, 0), App.Vector(45, -56, 0)),  # 4
    Part.LineSegment(App.Vector(45, -56, 0), App.Vector(52, -56, 0)),  # 5
    Part.LineSegment(App.Vector(52, -56, 0), App.Vector(52, -49, 0)),  # 6
    Part.LineSegment(App.Vector(52, -49, 0), App.Vector(46, -49, 0)),  # 7
    Part.LineSegment(App.Vector(46, -49, 0), App.Vector(46, -43, 0)),  # 8
    Part.LineSegment(App.Vector(46, -43, 0), App.Vector(52, -43, 0)),  # 9
    Part.LineSegment(App.Vector(52, -43, 0), App.Vector(52, -36, 0)),  # 10
    Part.LineSegment(App.Vector(52, -36, 0), App.Vector(45, -36, 0)),  # 11
    Part.LineSegment(App.Vector(45, -36, 0), App.Vector(45, -42, 0)),  # 12
    Part.LineSegment(App.Vector(45, -42, 0), App.Vector(39, -42, 0)),  # 13
    Part.LineSegment(App.Vector(39, -42, 0), App.Vector(39, -36, 0)),  # 14
    Part.LineSegment(App.Vector(39, -36, 0), App.Vector(32, -36, 0)),  # 15
    Part.LineSegment(App.Vector(32, -36, 0), App.Vector(32, -43, 0)),  # 16
    Part.LineSegment(App.Vector(32, -43, 0), App.Vector(37, -43, 0)),  # 17
    Part.LineSegment(App.Vector(37, -43, 0), App.Vector(37, -49, 0)),  # 18
    Part.LineSegment(App.Vector(37, -49, 0), App.Vector(32, -49, 0)),  # 19
], False)
sketch5.addConstraint([
    Sketcher.Constraint("Coincident", 0, 2, 1, 1),
    Sketcher.Constraint("Coincident", 1, 2, 2, 1),
    Sketcher.Constraint("Coincident", 2, 2, 3, 1),
    Sketcher.Constraint("Coincident", 3, 2, 4, 1),
    Sketcher.Constraint("Coincident", 4, 2, 5, 1),
    Sketcher.Constraint("Coincident", 5, 2, 6, 1),
    Sketcher.Constraint("Coincident", 6, 2, 7, 1),
    Sketcher.Constraint("Coincident", 7, 2, 8, 1),
    Sketcher.Constraint("Coincident", 8, 2, 9, 1),
    Sketcher.Constraint("Coincident", 9, 2, 10, 1),
    Sketcher.Constraint("Coincident", 10, 2, 11, 1),
    Sketcher.Constraint("Coincident", 11, 2, 12, 1),
    Sketcher.Constraint("Coincident", 12, 2, 13, 1),
    Sketcher.Constraint("Coincident", 13, 2, 14, 1),
    Sketcher.Constraint("Coincident", 14, 2, 15, 1),
    Sketcher.Constraint("Coincident", 15, 2, 16, 1),
    Sketcher.Constraint("Coincident", 16, 2, 17, 1),
    Sketcher.Constraint("Coincident", 17, 2, 18, 1),
    Sketcher.Constraint("Coincident", 18, 2, 19, 1),
    Sketcher.Constraint("Coincident", 19, 2, 0, 1),
    Sketcher.Constraint("Vertical", 0),
    Sketcher.Constraint("Horizontal", 1),
    Sketcher.Constraint("Vertical", 2),
    Sketcher.Constraint("Horizontal", 3),
    Sketcher.Constraint("Vertical", 4),
    Sketcher.Constraint("Horizontal", 5),
    Sketcher.Constraint("Vertical", 6),
    Sketcher.Constraint("Horizontal", 7),
    Sketcher.Constraint("Vertical", 8),
    Sketcher.Constraint("Horizontal", 9),
    Sketcher.Constraint("Vertical", 10),
    Sketcher.Constraint("Horizontal", 11),
    Sketcher.Constraint("Vertical", 12),
    Sketcher.Constraint("Horizontal", 13),
    Sketcher.Constraint("Vertical", 14),
    Sketcher.Constraint("Horizontal", 15),
    Sketcher.Constraint("Vertical", 16),
    Sketcher.Constraint("Horizontal", 17),
    Sketcher.Constraint("Vertical", 18),
    Sketcher.Constraint("Horizontal", 19),
    Sketcher.Constraint("Horizontal", 1, 2, 4, 2),
    Sketcher.Constraint("Horizontal", 11, 2, 14, 2),
    Sketcher.Constraint("Horizontal", 9, 2, 16, 2),
    Sketcher.Constraint("Horizontal", 7, 2, 18, 2),
    Sketcher.Constraint("Vertical", 6, 2, 9, 2),
    Sketcher.Constraint("Vertical", 4, 2, 11, 2),
    Sketcher.Constraint("Vertical", 2, 2, 13, 2),
    Sketcher.Constraint("Vertical", 0, 2, 15, 2),
    Sketcher.Constraint("Equal", 1, 5),
    Sketcher.Constraint("Equal", 9, 17),
    Sketcher.Constraint("Equal", 15, 0),
    Sketcher.Constraint("Equal", 19, 2),
    Sketcher.Constraint("Equal", 13, 8),
    Sketcher.Constraint("Equal", 6, 10),
    Sketcher.Constraint("Equal", 4, 12),
    Sketcher.Constraint("DistanceX", 1, 1, 1, 2, 7.0),
    Sketcher.Constraint("DistanceX", 3, 1, 3, 2, 6.0),
    Sketcher.Constraint("DistanceX", 7, 2, 7, 1, 5.5),
    Sketcher.Constraint("DistanceX", -1, 1, 0, 2, 31.594177),
    Sketcher.Constraint("DistanceY", 0, 2, -1, 1, 56.305582),
])
sketch5.setExpression("Constraints[55]", "Params.sketch5_width")
sketch5.setExpression("Constraints[56]", "Params.sketch5_width2")
sketch5.setExpression("Constraints[57]", "Params.sketch5_width3")
pad5 = body5.newObject("PartDesign::Pad", "Pad004")
pad5.Profile = sketch5
pad5.setExpression("Length", "Params.pad5_length")
pad5.Midplane = True

doc.recompute()
